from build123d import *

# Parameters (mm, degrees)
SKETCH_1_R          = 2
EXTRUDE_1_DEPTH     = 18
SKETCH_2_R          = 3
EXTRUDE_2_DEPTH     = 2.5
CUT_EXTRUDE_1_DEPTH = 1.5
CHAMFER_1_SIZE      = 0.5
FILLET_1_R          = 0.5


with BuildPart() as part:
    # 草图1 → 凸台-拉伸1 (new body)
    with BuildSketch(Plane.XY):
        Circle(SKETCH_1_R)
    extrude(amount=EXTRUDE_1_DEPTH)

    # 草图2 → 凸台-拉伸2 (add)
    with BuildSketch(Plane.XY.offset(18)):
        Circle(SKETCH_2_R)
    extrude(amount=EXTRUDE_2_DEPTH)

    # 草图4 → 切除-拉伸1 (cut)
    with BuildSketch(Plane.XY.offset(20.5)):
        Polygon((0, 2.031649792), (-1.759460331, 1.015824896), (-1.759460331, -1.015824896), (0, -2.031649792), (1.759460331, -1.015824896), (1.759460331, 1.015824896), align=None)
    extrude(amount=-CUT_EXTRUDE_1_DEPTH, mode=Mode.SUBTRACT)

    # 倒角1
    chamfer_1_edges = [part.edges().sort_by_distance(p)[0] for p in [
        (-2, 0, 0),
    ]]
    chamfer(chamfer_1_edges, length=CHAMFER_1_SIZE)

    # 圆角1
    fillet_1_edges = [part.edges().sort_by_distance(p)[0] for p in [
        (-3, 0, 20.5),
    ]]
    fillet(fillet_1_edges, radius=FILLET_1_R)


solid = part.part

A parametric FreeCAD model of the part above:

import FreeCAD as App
import Part
import Sketcher
from FreeCAD import Vector
Q = App.Units.Quantity


def edges_at(feature, points):
    """Names of the edges that pass closest to the given points."""
    edges = feature.Shape.Edges
    near = lambda p: min(range(len(edges)), key=lambda i: edges[i].distToShape(Part.Vertex(*p))[0])
    return sorted({f"Edge{near(p) + 1}" for p in points})


def add_polygon(sketch, points):
    """Adds a closed chain of lines whose ends are joined by coincident constraints."""
    first, n = sketch.GeometryCount, len(points)
    for a, b in zip(points, points[1:] + points[:1]):
        sketch.addGeometry(Part.LineSegment(App.Vector(*a, 0), App.Vector(*b, 0)), False)
    for i in range(n):
        sketch.addConstraint(Sketcher.Constraint("Coincident", first + i, 2, first + (i + 1) % n, 1))

doc = App.newDocument("Part")
body = doc.addObject("PartDesign::Body", "Body")

sketch1 = body.newObject("Sketcher::SketchObject", "Sketch")
sketch1.AttachmentSupport = (doc.getObject("XY_Plane"), [""])
sketch1.MapMode = "FlatFace"
sketch1.addGeometry(Part.Circle(Vector(0, 0, 0), Vector(0, 0, 1), 2), False)
sketch1.addConstraint([
    Sketcher.Constraint("Coincident", 0, 3, -1, 1),
    Sketcher.Constraint("Diameter", 0, 4.0),
])
pad1 = body.newObject("PartDesign::Pad", "Pad")
pad1.Profile = sketch1
pad1.Length = 18

sketch2 = body.newObject("Sketcher::SketchObject", "Sketch001")
sketch2.AttachmentSupport = (doc.getObject("XY_Plane"), [""])
sketch2.MapMode = "FlatFace"
sketch2.AttachmentOffset = App.Placement(Vector(0, 0, 18), App.Rotation())
sketch2.addGeometry(Part.Circle(Vector(0, 0, 0), Vector(0, 0, 1), 3), False)
sketch2.addConstraint([
    Sketcher.Constraint("Coincident", 0, 3, -1, 1),
    Sketcher.Constraint("Diameter", 0, 6.0),
])
pad2 = body.newObject("PartDesign::Pad", "Pad001")
pad2.Profile = sketch2
pad2.Length = 2.5

sketch3 = body.newObject("Sketcher::SketchObject", "Sketch002")
sketch3.AttachmentSupport = (doc.getObject("XY_Plane"), [""])
sketch3.MapMode = "FlatFace"
sketch3.AttachmentOffset = App.Placement(Vector(0, 0, 20.5), App.Rotation())
add_polygon(sketch3, [(0, 2.03165), (-1.75946, 1.015825), (-1.75946, -1.015825), (0, -2.03165), (1.75946, -1.015825), (1.75946, 1.015825)])
sketch3.addConstraint([
    Sketcher.Constraint("Vertical", 1),
    Sketcher.Constraint("Vertical", 4),
    Sketcher.Constraint("Symmetric", 0, 2, 3, 2, -1, 1),
    Sketcher.Constraint("Symmetric", 2, 2, 5, 2, -1, 1),
    Sketcher.Constraint("PointOnObject", 2, 2, -2),
    Sketcher.Constraint("Parallel", 2, 5),
    Sketcher.Constraint("Horizontal", 1, 2, 3, 2),
    Sketcher.Constraint("Angle", 0, Q("-150 deg")),
    Sketcher.Constraint("DistanceY", 1, 2, 1, 1, 2.03165),
    Sketcher.Constraint("DistanceY", 2, 2, 5, 2, 4.0633),
])
pocket1 = body.newObject("PartDesign::Pocket", "Pocket")
pocket1.Profile = sketch3
pocket1.Length = 1.5
doc.recompute()

chamfer = body.newObject("PartDesign::Chamfer", "Chamfer")
chamfer.Base = (pocket1, edges_at(pocket1, [(-2, 0, 0)]))
chamfer.Size = 0.5
doc.recompute()

fillet = body.newObject("PartDesign::Fillet", "Fillet")
fillet.Base = (chamfer, edges_at(chamfer, [(-3, 0, 20.5)]))
fillet.Radius = 0.5

doc.recompute()
